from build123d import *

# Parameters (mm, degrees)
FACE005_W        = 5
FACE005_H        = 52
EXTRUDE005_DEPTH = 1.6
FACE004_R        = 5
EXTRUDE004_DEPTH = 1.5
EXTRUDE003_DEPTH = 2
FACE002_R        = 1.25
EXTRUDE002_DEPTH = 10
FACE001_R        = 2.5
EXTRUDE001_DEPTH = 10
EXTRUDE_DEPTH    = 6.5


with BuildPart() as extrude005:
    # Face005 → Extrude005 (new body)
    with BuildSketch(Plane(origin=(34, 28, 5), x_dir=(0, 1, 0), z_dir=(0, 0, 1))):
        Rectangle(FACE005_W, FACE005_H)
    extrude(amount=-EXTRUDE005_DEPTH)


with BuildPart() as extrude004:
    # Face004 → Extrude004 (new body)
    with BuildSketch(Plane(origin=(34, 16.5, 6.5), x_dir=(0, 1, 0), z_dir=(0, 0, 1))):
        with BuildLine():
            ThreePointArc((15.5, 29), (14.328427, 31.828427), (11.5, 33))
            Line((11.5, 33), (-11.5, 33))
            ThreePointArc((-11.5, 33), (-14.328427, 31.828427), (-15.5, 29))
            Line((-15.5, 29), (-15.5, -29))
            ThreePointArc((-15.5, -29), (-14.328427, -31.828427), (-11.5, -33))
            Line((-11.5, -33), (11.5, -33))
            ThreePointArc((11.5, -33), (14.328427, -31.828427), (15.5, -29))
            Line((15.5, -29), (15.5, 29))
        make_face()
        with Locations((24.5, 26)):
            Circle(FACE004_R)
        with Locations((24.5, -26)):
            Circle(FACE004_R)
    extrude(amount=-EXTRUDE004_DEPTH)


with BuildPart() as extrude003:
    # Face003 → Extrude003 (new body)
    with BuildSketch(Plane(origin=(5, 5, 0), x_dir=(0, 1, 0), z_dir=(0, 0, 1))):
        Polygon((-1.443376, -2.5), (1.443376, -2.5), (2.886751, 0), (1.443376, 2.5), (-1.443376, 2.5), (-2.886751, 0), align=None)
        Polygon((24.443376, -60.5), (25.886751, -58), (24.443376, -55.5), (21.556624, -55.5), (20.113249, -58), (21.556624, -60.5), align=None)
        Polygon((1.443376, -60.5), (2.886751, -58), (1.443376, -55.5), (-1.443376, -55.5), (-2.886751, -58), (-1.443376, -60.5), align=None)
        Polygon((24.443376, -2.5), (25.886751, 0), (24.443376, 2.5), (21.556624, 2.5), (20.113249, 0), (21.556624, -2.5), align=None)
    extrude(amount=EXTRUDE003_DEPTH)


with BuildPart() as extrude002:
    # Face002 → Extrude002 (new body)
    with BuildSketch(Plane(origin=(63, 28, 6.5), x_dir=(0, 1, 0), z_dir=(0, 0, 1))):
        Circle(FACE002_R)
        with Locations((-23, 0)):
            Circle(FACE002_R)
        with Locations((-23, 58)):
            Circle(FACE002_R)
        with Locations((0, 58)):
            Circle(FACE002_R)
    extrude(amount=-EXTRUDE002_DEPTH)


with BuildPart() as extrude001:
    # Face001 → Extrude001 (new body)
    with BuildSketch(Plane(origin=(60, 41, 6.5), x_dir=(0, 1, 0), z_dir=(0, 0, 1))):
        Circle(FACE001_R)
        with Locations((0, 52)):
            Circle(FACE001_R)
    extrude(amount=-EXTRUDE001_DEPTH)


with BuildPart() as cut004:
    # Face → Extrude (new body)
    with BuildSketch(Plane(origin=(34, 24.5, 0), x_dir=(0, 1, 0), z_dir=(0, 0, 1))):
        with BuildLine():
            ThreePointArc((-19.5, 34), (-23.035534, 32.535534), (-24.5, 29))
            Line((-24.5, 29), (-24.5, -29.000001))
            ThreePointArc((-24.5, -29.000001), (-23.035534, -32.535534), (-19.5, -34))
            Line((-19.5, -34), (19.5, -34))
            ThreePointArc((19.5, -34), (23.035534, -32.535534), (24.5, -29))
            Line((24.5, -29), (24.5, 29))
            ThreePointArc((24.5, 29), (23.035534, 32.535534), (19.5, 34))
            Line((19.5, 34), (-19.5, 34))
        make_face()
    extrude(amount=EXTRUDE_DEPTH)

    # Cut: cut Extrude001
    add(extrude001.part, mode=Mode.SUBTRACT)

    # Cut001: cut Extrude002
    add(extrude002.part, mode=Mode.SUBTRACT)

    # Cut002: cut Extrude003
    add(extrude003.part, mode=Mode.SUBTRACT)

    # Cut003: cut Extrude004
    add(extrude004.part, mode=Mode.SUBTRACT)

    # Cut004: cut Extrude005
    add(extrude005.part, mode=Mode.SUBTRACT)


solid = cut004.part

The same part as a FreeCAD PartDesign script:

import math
import FreeCAD as App
import Part
import Sketcher
from FreeCAD import Vector
Q = App.Units.Quantity


def add_polygon(sketch, points):
    """Adds a closed chain of lines whose ends are joined by coincident constraints."""
    first, n = sketch.GeometryCount, len(points)
    for a, b in zip(points, points[1:] + points[:1]):
        sketch.addGeometry(Part.LineSegment(App.Vector(*a, 0), App.Vector(*b, 0)), False)
    for i in range(n):
        sketch.addConstraint(Sketcher.Constraint("Coincident", first + i, 2, first + (i + 1) % n, 1))

doc = App.newDocument("Part")
body = doc.addObject("PartDesign::Body", "Body")

# Sketch on XY plane
sketch1 = doc.addObject("Sketcher::SketchObject", "Sketch")
body.addObject(sketch1)
sketch1.AttachmentSupport = (doc.XY_Plane, [""])
sketch1.MapMode = "FlatFace"
sketch1.AttachmentOffset = App.Placement(Vector(0, 0, 5), App.Rotation())
add_polygon(sketch1, [(8, 25.5), (60, 25.5), (60, 30.5), (8, 30.5)])  # lines 0-3
sketch1.addConstraint([
    Sketcher.Constraint("Horizontal", 0),
    Sketcher.Constraint("Vertical", 1),
    Sketcher.Constraint("Horizontal", 2),
    Sketcher.Constraint("Vertical", 3),
    Sketcher.Constraint("DistanceX", 0, 1, 0, 2, Q("52 mm")),
    Sketcher.Constraint("DistanceY", 1, 1, 1, 2, Q("5 mm")),
    Sketcher.Constraint("DistanceX", -1, 1, 0, 2, Q("60 mm")),
    Sketcher.Constraint("DistanceY", -1, 1, 0, 2, Q("25.5 mm")),
])
pad1 = doc.addObject("PartDesign::Pad", "Pad")
body.addObject(pad1)
pad1.Profile = sketch1
pad1.Length = 1.6
pad1.Reversed = True
body2 = doc.addObject("PartDesign::Body", "Body001")
body2.AllowCompound = True

# Sketch on XY plane
sketch2 = doc.addObject("Sketcher::SketchObject", "Sketch001")
body2.addObject(sketch2)
sketch2.AttachmentSupport = (doc.getObject("XY_Plane001"), [""])
sketch2.MapMode = "FlatFace"
sketch2.AttachmentOffset = App.Placement(Vector(0, 0, 6.5), App.Rotation())
sketch2.addGeometry([
    Part.ArcOfCircle(Part.Circle(Vector(5, 28, 0), Vector(0, 0, 1), 4), math.radians(90.000006), math.radians(179.999994)),  # 0
    Part.LineSegment(Vector(1, 28, 0), Vector(1, 5, 0)),  # 1
    Part.ArcOfCircle(Part.Circle(Vector(5, 5, 0), Vector(0, 0, 1), 4), math.radians(-179.999994), math.radians(-90.000006)),  # 2
    Part.LineSegment(Vector(5, 1, 0), Vector(63, 1, 0)),  # 3
    Part.ArcOfCircle(Part.Circle(Vector(63, 5, 0), Vector(0, 0, 1), 4), math.radians(-89.999994), math.radians(-0.000006)),  # 4
    Part.LineSegment(Vector(67, 5, 0), Vector(67, 28, 0)),  # 5
    Part.ArcOfCircle(Part.Circle(Vector(63, 28, 0), Vector(0, 0, 1), 4), math.radians(0.000006), math.radians(89.999994)),  # 6
    Part.LineSegment(Vector(63, 32, 0), Vector(5, 32, 0)),  # 7
    Part.Circle(Vector(8, 41, 0), Vector(0, 0, 1), 5),  # 8
    Part.Circle(Vector(60, 41, 0), Vector(0, 0, 1), 5),  # 9
], False)
sketch2.addConstraint([
    Sketcher.Constraint("Tangent", 0, 2, 1, 1),
    Sketcher.Constraint("Tangent", 1, 2, 2, 1),
    Sketcher.Constraint("Tangent", 2, 2, 3, 1),
    Sketcher.Constraint("Tangent", 3, 2, 4, 1),
    Sketcher.Constraint("Tangent", 4, 2, 5, 1),
    Sketcher.Constraint("Tangent", 5, 2, 6, 1),
    Sketcher.Constraint("Tangent", 6, 2, 7, 1),
    Sketcher.Constraint("Tangent", 7, 2, 0, 1),
    Sketcher.Constraint("Vertical", 1),
    Sketcher.Constraint("Horizontal", 3),
    Sketcher.Constraint("Vertical", 5),
    Sketcher.Constraint("Horizontal", 7),
    Sketcher.Constraint("Equal", 0, 2),
    Sketcher.Constraint("Equal", 2, 4),
    Sketcher.Constraint("Equal", 4, 6),
    Sketcher.Constraint("Equal", 8, 9),
    Sketcher.Constraint("Horizontal", 8, 3, 9, 3),
    Sketcher.Constraint("Diameter", 8, Q("10 mm")),
    Sketcher.Constraint("Radius", 0, Q("4 mm")),
    Sketcher.Constraint("DistanceX", 3, 1, 3, 2, Q("58 mm")),
    Sketcher.Constraint("DistanceY", 1, 2, 1, 1, Q("23 mm")),
    Sketcher.Constraint("DistanceX", -1, 1, 0, 3, Q("5 mm")),
    Sketcher.Constraint("DistanceY", -1, 1, 0, 3, Q("28 mm")),
    Sketcher.Constraint("DistanceX", -1, 1, 8, 3, Q("8 mm")),
    Sketcher.Constraint("DistanceY", -1, 1, 8, 3, Q("41 mm")),
    Sketcher.Constraint("DistanceX", -1, 1, 9, 3, Q("60 mm")),
])
pad2 = doc.addObject("PartDesign::Pad", "Pad001")
body2.addObject(pad2)
pad2.Profile = sketch2
pad2.Length = 1.5
pad2.Reversed = True
body3 = doc.addObject("PartDesign::Body", "Body002")
body3.AllowCompound = True

# Sketch on XY plane
sketch3 = doc.addObject("Sketcher::SketchObject", "Sketch002")
body3.addObject(sketch3)
sketch3.AttachmentSupport = (doc.getObject("XY_Plane002"), [""])
sketch3.MapMode = "FlatFace"
add_polygon(sketch3, [(7.5, 3.556624), (7.5, 6.443376), (5, 7.886751), (2.5, 6.443376), (2.5, 3.556624), (5, 2.113249)])  # lines 0-5
add_polygon(sketch3, [(65.5, 29.443376), (63, 30.886751), (60.5, 29.443376), (60.5, 26.556624), (63, 25.113249), (65.5, 26.556624)])  # lines 6-11
add_polygon(sketch3, [(65.5, 6.443376), (63, 7.886751), (60.5, 6.443376), (60.5, 3.556624), (63, 2.113249), (65.5, 3.556624)])  # lines 12-17
add_polygon(sketch3, [(7.5, 29.443376), (5, 30.886751), (2.5, 29.443376), (2.5, 26.556624), (5, 25.113249), (7.5, 26.556624)])  # lines 18-23
sketch3.addConstraint([
    Sketcher.Constraint("Vertical", 0),
    Sketcher.Constraint("Vertical", 3),
    Sketcher.Constraint("Vertical", 8),
    Sketcher.Constraint("Vertical", 11),
    Sketcher.Constraint("Vertical", 14),
    Sketcher.Constraint("Vertical", 17),
    Sketcher.Constraint("Vertical", 20),
    Sketcher.Constraint("Vertical", 23),
    Sketcher.Constraint("Parallel", 1, 4),
    Sketcher.Constraint("Parallel", 2, 5),
    Sketcher.Constraint("Parallel", 4, 6),
    Sketcher.Constraint("Parallel", 5, 7),
    Sketcher.Constraint("Parallel", 6, 9),
    Sketcher.Constraint("Parallel", 7, 10),
    Sketcher.Constraint("Parallel", 9, 12),
    Sketcher.Constraint("Parallel", 10, 13),
    Sketcher.Constraint("Parallel", 12, 15),
    Sketcher.Constraint("Parallel", 13, 16),
    Sketcher.Constraint("Parallel", 15, 18),
    Sketcher.Constraint("Parallel", 16, 19),
    Sketcher.Constraint("Parallel", 18, 21),
    Sketcher.Constraint("Parallel", 19, 22),
    Sketcher.Constraint("Horizontal", 0, 2, 2, 2),
    Sketcher.Constraint("Horizontal", 3, 2, 5, 2),
    Sketcher.Constraint("Horizontal", 8, 2, 10, 2),
    Sketcher.Constraint("Horizontal", 7, 2, 11, 2),
    Sketcher.Constraint("Horizontal", 1, 2, 12, 2),
    Sketcher.Constraint("Horizontal", 2, 2, 13, 2),
    Sketcher.Constraint("Horizontal", 5, 2, 14, 2),
    Sketcher.Constraint("Horizontal", 4, 2, 15, 2),
    Sketcher.Constraint("Horizontal", 14, 2, 16, 2),
    Sketcher.Constraint("Horizontal", 6, 2, 18, 2),
    Sketcher.Constraint("Horizontal", 11, 2, 19, 2),
    Sketcher.Constraint("Horizontal", 10, 2, 20, 2),
    Sketcher.Constraint("Horizontal", 9, 2, 21, 2),
    Sketcher.Constraint("Horizontal", 20, 2, 22, 2),
    Sketcher.Constraint("Vertical", 1, 2, 4, 2),
    Sketcher.Constraint("Vertical", 9, 2, 12, 2),
    Sketcher.Constraint("Vertical", 8, 2, 13, 2),
    Sketcher.Constraint("Vertical", 4, 2, 18, 2),
    Sketcher.Constraint("Equal", 3, 8),
    Sketcher.Constraint("Angle", 1, Q("150.000012 deg")),
    Sketcher.Constraint("DistanceX", -1, 1, 1, 2, Q("5 mm")),
    Sketcher.Constraint("DistanceX", -1, 1, 6, 2, Q("63 mm")),
    Sketcher.Constraint("DistanceX", 2, 2, 0, 2, Q("5 mm")),
    Sketcher.Constraint("DistanceY", 1, 2, 6, 2, Q("23 mm")),
    Sketcher.Constraint("DistanceY", 0, 1, 0, 2, Q("2.886752 mm")),
    Sketcher.Constraint("DistanceY", -1, 1, 1, 2, Q("7.886751 mm")),
])
pad3 = doc.addObject("PartDesign::Pad", "Pad002")
body3.addObject(pad3)
pad3.Profile = sketch3
pad3.Length = 2
body4 = doc.addObject("PartDesign::Body", "Body003")
body4.AllowCompound = True

# Sketch on XY plane
sketch4 = doc.addObject("Sketcher::SketchObject", "Sketch003")
body4.addObject(sketch4)
sketch4.AttachmentSupport = (doc.getObject("XY_Plane003"), [""])
sketch4.MapMode = "FlatFace"
sketch4.AttachmentOffset = App.Placement(Vector(0, 0, 6.5), App.Rotation())
sketch4.addGeometry([
    Part.Circle(Vector(63, 28, 0), Vector(0, 0, 1), 1.25),
    Part.Circle(Vector(63, 5, 0), Vector(0, 0, 1), 1.25),
    Part.Circle(Vector(5, 5, 0), Vector(0, 0, 1), 1.25),
    Part.Circle(Vector(5, 28, 0), Vector(0, 0, 1), 1.25),
], False)
sketch4.addConstraint([
    Sketcher.Constraint("Equal", 0, 1),
    Sketcher.Constraint("Equal", 1, 2),
    Sketcher.Constraint("Equal", 2, 3),
    Sketcher.Constraint("Horizontal", 1, 3, 2, 3),
    Sketcher.Constraint("Horizontal", 0, 3, 3, 3),
    Sketcher.Constraint("Vertical", 0, 3, 1, 3),
    Sketcher.Constraint("Vertical", 2, 3, 3, 3),
    Sketcher.Constraint("Diameter", 0, Q("2.5 mm")),
    Sketcher.Constraint("DistanceX", -1, 1, 0, 3, Q("63 mm")),
    Sketcher.Constraint("DistanceY", -1, 1, 0, 3, Q("28 mm")),
    Sketcher.Constraint("DistanceY", -1, 1, 1, 3, Q("5 mm")),
    Sketcher.Constraint("DistanceX", -1, 1, 2, 3, Q("5 mm")),
])
pad4 = doc.addObject("PartDesign::Pad", "Pad003")
body4.addObject(pad4)
pad4.Profile = sketch4
pad4.Length = 10
pad4.Reversed = True
body5 = doc.addObject("PartDesign::Body", "Body004")
body5.AllowCompound = True

# Sketch on XY plane
sketch5 = doc.addObject("Sketcher::SketchObject", "Sketch004")
body5.addObject(sketch5)
sketch5.AttachmentSupport = (doc.getObject("XY_Plane004"), [""])
sketch5.MapMode = "FlatFace"
sketch5.AttachmentOffset = App.Placement(Vector(0, 0, 6.5), App.Rotation())
sketch5.addGeometry([
    Part.Circle(Vector(60, 41, 0), Vector(0, 0, 1), 2.5),
    Part.Circle(Vector(8, 41, 0), Vector(0, 0, 1), 2.5),
], False)
sketch5.addConstraint([
    Sketcher.Constraint("Equal", 0, 1),
    Sketcher.Constraint("Horizontal", 0, 3, 1, 3),
    Sketcher.Constraint("Diameter", 0, Q("5 mm")),
    Sketcher.Constraint("DistanceX", -1, 1, 0, 3, Q("60 mm")),
    Sketcher.Constraint("DistanceY", -1, 1, 0, 3, Q("41 mm")),
    Sketcher.Constraint("DistanceX", -1, 1, 1, 3, Q("8 mm")),
])
pad5 = doc.addObject("PartDesign::Pad", "Pad004")
body5.addObject(pad5)
pad5.Profile = sketch5
pad5.Length = 10
pad5.Reversed = True
body6 = doc.addObject("PartDesign::Body", "Body005")

# Sketch on XY plane
sketch6 = doc.addObject("Sketcher::SketchObject", "Sketch005")
body6.addObject(sketch6)
sketch6.AttachmentSupport = (doc.getObject("XY_Plane005"), [""])
sketch6.MapMode = "FlatFace"
sketch6.addGeometry([
    Part.ArcOfCircle(Part.Circle(Vector(5, 5, 0), Vector(0, 0, 1), 5), math.radians(179.999996), math.radians(270.000004)),  # 0
    Part.LineSegment(Vector(5, 0, 0), Vector(63.000001, 0, 0)),  # 1
    Part.ArcOfCircle(Part.Circle(Vector(63, 5, 0), Vector(0, 0, 1), 5), math.radians(-89.999992), math.radians(0.000004)),  # 2
    Part.LineSegment(Vector(68, 5, 0), Vector(68, 44, 0)),  # 3
    Part.ArcOfCircle(Part.Circle(Vector(63, 44, 0), Vector(0, 0, 1), 5), math.radians(-0.000004), math.radians(90.000004)),  # 4
    Part.LineSegment(Vector(63, 49, 0), Vector(5, 49, 0)),  # 5
    Part.ArcOfCircle(Part.Circle(Vector(5, 44, 0), Vector(0, 0, 1), 5), math.radians(89.999996), math.radians(180.000004)),  # 6
    Part.LineSegment(Vector(0, 44, 0), Vector(0, 5, 0)),  # 7
], False)
sketch6.addConstraint([
    Sketcher.Constraint("Tangent", 0, 2, 1, 1),
    Sketcher.Constraint("Tangent", 1, 2, 2, 1),
    Sketcher.Constraint("Tangent", 2, 2, 3, 1),
    Sketcher.Constraint("Tangent", 3, 2, 4, 1),
    Sketcher.Constraint("Tangent", 4, 2, 5, 1),
    Sketcher.Constraint("Tangent", 5, 2, 6, 1),
    Sketcher.Constraint("Tangent", 6, 2, 7, 1),
    Sketcher.Constraint("Tangent", 7, 2, 0, 1),
    Sketcher.Constraint("Horizontal", 1),
    Sketcher.Constraint("Vertical", 3),
    Sketcher.Constraint("Horizontal", 5),
    Sketcher.Constraint("Vertical", 7),
    Sketcher.Constraint("Equal", 0, 2),
    Sketcher.Constraint("Equal", 2, 4),
    Sketcher.Constraint("Equal", 4, 6),
    Sketcher.Constraint("PointOnObject", 0, 2, -1),
    Sketcher.Constraint("PointOnObject", 6, 2, -2),
    Sketcher.Constraint("Radius", 0, Q("5 mm")),
    Sketcher.Constraint("DistanceX", 1, 1, 1, 2, Q("58.000001 mm")),
    Sketcher.Constraint("DistanceY", 3, 1, 3, 2, Q("39 mm")),
])
pad6 = doc.addObject("PartDesign::Pad", "Pad005")
body6.addObject(pad6)
pad6.Profile = sketch6
pad6.Length = 6.5
doc.recompute()

boolean = doc.addObject("PartDesign::Boolean", "Boolean")
body6.addObject(boolean)
boolean.Type = "Cut"
boolean.addObjects([body5])
doc.recompute()

boolean2 = doc.addObject("PartDesign::Boolean", "Boolean001")
body6.addObject(boolean2)
boolean2.Type = "Cut"
boolean2.addObjects([body4])
doc.recompute()

boolean3 = doc.addObject("PartDesign::Boolean", "Boolean002")
body6.addObject(boolean3)
boolean3.Type = "Cut"
boolean3.addObjects([body3])
doc.recompute()

boolean4 = doc.addObject("PartDesign::Boolean", "Boolean003")
body6.addObject(boolean4)
boolean4.Type = "Cut"
boolean4.addObjects([body2])
doc.recompute()

boolean5 = doc.addObject("PartDesign::Boolean", "Boolean004")
body6.addObject(boolean5)
boolean5.Type = "Cut"
boolean5.addObjects([body])

doc.recompute()
